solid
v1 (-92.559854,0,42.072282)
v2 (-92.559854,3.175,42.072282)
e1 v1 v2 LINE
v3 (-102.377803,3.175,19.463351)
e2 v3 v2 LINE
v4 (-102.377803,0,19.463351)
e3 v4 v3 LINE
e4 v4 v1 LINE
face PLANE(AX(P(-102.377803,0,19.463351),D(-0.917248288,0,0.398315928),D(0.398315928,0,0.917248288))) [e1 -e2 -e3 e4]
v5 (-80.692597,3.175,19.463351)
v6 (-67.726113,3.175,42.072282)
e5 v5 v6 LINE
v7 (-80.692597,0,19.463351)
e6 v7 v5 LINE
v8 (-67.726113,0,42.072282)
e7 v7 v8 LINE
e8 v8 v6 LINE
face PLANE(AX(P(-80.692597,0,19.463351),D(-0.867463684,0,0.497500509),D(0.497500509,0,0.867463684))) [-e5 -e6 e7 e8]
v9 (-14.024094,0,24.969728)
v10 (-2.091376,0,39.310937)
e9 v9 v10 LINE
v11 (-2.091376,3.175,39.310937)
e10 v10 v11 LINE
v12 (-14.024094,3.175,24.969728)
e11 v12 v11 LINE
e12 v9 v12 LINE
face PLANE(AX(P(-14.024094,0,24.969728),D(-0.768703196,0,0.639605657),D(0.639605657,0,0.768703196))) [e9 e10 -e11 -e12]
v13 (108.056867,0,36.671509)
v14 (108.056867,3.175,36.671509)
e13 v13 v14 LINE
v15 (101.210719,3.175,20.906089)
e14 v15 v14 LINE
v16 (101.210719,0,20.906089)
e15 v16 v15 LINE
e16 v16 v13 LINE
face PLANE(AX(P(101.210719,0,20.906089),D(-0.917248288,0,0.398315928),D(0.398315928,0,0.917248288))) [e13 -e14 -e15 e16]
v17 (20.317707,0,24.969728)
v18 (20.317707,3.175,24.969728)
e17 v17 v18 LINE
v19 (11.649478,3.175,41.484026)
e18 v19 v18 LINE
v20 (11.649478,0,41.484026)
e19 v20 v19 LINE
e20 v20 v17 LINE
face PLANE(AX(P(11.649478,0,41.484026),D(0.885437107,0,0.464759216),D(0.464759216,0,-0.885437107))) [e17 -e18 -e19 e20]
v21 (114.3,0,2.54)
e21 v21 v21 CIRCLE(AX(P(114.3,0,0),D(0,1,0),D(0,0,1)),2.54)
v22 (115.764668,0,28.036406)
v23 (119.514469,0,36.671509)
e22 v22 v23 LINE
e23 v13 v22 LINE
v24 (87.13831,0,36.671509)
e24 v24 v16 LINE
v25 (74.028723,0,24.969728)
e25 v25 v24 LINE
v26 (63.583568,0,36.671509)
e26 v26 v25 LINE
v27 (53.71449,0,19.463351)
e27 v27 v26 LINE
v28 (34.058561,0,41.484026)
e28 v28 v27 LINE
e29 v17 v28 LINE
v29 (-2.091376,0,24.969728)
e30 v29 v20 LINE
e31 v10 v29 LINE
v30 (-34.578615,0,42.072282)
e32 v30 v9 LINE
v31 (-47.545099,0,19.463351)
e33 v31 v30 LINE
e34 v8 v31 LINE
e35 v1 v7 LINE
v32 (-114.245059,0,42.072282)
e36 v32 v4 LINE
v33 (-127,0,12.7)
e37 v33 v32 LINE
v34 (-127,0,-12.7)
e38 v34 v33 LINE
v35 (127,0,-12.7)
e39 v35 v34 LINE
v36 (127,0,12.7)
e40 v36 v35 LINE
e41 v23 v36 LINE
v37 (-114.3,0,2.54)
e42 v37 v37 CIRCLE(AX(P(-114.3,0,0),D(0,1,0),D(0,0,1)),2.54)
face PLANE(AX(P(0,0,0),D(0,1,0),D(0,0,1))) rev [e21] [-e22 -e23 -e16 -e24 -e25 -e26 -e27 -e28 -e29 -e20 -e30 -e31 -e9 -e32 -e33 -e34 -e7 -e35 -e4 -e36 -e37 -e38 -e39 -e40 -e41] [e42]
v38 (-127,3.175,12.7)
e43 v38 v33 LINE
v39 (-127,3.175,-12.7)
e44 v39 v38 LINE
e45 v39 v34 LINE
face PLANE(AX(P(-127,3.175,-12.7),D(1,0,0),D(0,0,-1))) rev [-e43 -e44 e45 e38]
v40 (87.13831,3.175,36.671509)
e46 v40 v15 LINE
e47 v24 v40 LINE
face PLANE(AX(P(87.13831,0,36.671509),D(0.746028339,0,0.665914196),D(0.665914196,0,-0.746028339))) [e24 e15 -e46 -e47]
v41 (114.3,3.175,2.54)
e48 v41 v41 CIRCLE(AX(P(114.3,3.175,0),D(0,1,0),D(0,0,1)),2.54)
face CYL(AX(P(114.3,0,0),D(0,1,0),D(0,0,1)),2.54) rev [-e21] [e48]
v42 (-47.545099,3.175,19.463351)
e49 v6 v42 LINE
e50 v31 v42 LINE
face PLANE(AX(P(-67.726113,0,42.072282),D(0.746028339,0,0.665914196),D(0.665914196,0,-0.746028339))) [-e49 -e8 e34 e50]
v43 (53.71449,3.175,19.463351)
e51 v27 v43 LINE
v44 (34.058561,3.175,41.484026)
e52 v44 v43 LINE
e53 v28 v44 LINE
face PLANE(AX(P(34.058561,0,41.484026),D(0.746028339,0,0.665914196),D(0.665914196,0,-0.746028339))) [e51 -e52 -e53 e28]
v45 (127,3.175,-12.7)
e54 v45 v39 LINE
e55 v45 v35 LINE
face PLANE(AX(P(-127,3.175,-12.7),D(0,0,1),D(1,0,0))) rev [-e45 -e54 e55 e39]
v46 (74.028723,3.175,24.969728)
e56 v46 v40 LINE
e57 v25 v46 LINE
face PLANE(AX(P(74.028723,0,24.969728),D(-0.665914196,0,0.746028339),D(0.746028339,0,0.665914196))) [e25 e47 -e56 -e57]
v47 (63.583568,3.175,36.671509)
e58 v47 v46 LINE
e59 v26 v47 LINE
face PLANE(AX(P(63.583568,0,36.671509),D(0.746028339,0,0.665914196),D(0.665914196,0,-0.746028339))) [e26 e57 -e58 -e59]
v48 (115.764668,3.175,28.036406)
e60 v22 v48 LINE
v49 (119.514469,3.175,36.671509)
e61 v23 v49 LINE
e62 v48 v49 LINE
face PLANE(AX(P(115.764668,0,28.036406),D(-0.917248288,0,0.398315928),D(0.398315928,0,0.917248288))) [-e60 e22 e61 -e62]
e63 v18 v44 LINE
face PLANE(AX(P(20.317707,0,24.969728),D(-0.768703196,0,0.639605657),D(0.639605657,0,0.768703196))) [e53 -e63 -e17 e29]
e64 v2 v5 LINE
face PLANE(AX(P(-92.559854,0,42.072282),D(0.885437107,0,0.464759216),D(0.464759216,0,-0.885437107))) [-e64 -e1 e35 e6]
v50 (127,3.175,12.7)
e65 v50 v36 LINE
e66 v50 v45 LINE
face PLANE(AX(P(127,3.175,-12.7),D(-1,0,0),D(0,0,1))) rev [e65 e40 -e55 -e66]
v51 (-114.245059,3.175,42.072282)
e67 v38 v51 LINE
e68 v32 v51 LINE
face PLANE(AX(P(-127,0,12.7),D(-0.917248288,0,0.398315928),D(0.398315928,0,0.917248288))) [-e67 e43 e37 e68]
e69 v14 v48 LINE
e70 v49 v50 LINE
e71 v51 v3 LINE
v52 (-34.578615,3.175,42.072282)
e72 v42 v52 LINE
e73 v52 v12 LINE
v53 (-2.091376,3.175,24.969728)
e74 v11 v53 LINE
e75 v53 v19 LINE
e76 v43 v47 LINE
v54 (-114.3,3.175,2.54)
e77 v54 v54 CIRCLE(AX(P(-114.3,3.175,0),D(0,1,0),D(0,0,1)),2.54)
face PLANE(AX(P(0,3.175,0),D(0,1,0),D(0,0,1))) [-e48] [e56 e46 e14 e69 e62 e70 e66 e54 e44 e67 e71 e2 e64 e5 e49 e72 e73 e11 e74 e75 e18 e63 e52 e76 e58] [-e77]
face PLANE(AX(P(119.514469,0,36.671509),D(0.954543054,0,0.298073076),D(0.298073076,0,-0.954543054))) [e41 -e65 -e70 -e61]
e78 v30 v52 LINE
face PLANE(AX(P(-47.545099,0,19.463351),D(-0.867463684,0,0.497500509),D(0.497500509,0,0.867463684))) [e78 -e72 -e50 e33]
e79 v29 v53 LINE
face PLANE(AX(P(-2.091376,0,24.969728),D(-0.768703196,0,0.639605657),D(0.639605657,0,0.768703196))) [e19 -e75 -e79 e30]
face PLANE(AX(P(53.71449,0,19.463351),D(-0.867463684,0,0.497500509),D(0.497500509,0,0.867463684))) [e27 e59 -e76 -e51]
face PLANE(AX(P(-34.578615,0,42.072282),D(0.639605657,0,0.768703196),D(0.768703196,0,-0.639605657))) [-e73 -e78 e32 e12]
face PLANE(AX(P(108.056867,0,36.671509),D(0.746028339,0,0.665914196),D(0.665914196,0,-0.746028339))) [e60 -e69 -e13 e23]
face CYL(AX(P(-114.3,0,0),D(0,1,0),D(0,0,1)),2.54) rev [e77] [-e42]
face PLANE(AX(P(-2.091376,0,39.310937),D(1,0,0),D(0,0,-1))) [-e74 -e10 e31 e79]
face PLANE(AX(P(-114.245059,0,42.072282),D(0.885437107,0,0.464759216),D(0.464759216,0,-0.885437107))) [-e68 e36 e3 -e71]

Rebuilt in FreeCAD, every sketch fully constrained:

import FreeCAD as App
import Part
import Sketcher
from FreeCAD import Vector
Q = App.Units.Quantity


def add_polygon(sketch, points):
    """Adds a closed chain of lines whose ends are joined by coincident constraints."""
    first, n = sketch.GeometryCount, len(points)
    for a, b in zip(points, points[1:] + points[:1]):
        sketch.addGeometry(Part.LineSegment(App.Vector(*a, 0), App.Vector(*b, 0)), False)
    for i in range(n):
        sketch.addConstraint(Sketcher.Constraint("Coincident", first + i, 2, first + (i + 1) % n, 1))

doc = App.newDocument("Part")
body = doc.addObject("PartDesign::Body", "Body")

sketch1 = body.newObject("Sketcher::SketchObject", "Sketch")
sketch1.AttachmentSupport = (doc.getObject("XZ_Plane"), [""])
sketch1.MapMode = "FlatFace"
add_polygon(sketch1, [(-127, -12.7), (-127, 12.7), (127, 12.7), (127, -12.7)])
sketch1.addConstraint(Sketcher.Constraint("Vertical", 0))
sketch1.addConstraint(Sketcher.Constraint("Horizontal", 1))
sketch1.addConstraint(Sketcher.Constraint("Vertical", 2))
sketch1.addConstraint(Sketcher.Constraint("Horizontal", 3))
sketch1.addConstraint(Sketcher.Constraint("Symmetric", 0, 2, 2, 2, -1, 1))
sketch1.addConstraint(Sketcher.Constraint("DistanceX", 1, 1, 1, 2, Q("10 in")))
sketch1.addConstraint(Sketcher.Constraint("DistanceY", 0, 1, 0, 2, Q("1 in")))
pad1 = body.newObject("PartDesign::Pad", "Pad")
pad1.Profile = sketch1
pad1.Length = Q("0.125 in")
pad1.Reversed = True

sketch2 = body.newObject("Sketcher::SketchObject", "Sketch001")
sketch2.AttachmentSupport = (doc.getObject("XZ_Plane"), [""])
sketch2.MapMode = "FlatFace"
sketch2.AttachmentOffset = App.Placement(Vector(0, 0, -0.125 * 25.4), App.Rotation())
add_polygon(sketch2, [(-127, 12.7), (-114.245059, 42.072282), (-102.377803, 19.463351), (-92.559854, 42.072282), (-80.692597, 19.463351), (-67.726113, 42.072282), (-47.545099, 19.463351), (-34.578615, 42.072282), (-14.024094, 24.969728), (-2.091376, 39.310937), (-2.091376, 24.969728), (11.649478, 41.484026), (20.317707, 24.969728), (34.058561, 41.484026), (53.71449, 19.463351), (63.583568, 36.671509), (74.028723, 24.969728), (87.13831, 36.671509), (101.210719, 20.906089), (108.056867, 36.671509), (115.764668, 28.036406), (119.514469, 36.671509), (127, 12.7)])
sketch2.addConstraint(Sketcher.Constraint("Vertical", 9))
sketch2.addConstraint(Sketcher.Constraint("Horizontal", 22))
sketch2.addConstraint(Sketcher.Constraint("Parallel", 0, 2))
sketch2.addConstraint(Sketcher.Constraint("Parallel", 1, 3))
sketch2.addConstraint(Sketcher.Constraint("Parallel", 4, 6))
sketch2.addConstraint(Sketcher.Constraint("Perpendicular", 7, 8))
sketch2.addConstraint(Sketcher.Constraint("Parallel", 8, 10))
sketch2.addConstraint(Sketcher.Constraint("Parallel", 3, 11))
sketch2.addConstraint(Sketcher.Constraint("Parallel", 10, 12))
sketch2.addConstraint(Sketcher.Constraint("Parallel", 5, 13))
sketch2.addConstraint(Sketcher.Constraint("Parallel", 6, 14))
sketch2.addConstraint(Sketcher.Constraint("Parallel", 13, 15))
sketch2.addConstraint(Sketcher.Constraint("Perpendicular", 15, 16))
sketch2.addConstraint(Sketcher.Constraint("Perpendicular", 16, 17))
sketch2.addConstraint(Sketcher.Constraint("Parallel", 2, 18))
sketch2.addConstraint(Sketcher.Constraint("Parallel", 17, 19))
sketch2.addConstraint(Sketcher.Constraint("Parallel", 18, 20))
sketch2.addConstraint(Sketcher.Constraint("Horizontal", 0, 2, 2, 2))
sketch2.addConstraint(Sketcher.Constraint("Horizontal", 1, 2, 3, 2))
sketch2.addConstraint(Sketcher.Constraint("Horizontal", 2, 2, 4, 2))
sketch2.addConstraint(Sketcher.Constraint("Horizontal", 3, 2, 5, 2))
sketch2.addConstraint(Sketcher.Constraint("Horizontal", 4, 2, 6, 2))
sketch2.addConstraint(Sketcher.Constraint("Horizontal", 7, 2, 9, 2))
sketch2.addConstraint(Sketcher.Constraint("Horizontal", 9, 2, 11, 2))
sketch2.addConstraint(Sketcher.Constraint("Horizontal", 10, 2, 12, 2))
sketch2.addConstraint(Sketcher.Constraint("Horizontal", 5, 2, 13, 2))
sketch2.addConstraint(Sketcher.Constraint("Horizontal", 11, 2, 15, 2))
sketch2.addConstraint(Sketcher.Constraint("Horizontal", 14, 2, 16, 2))
sketch2.addConstraint(Sketcher.Constraint("Horizontal", 16, 2, 18, 2))
sketch2.addConstraint(Sketcher.Constraint("Horizontal", 18, 2, 20, 2))
sketch2.addConstraint(Sketcher.Constraint("DistanceX", 22, 2, 22, 1, Q("10 in")))
sketch2.addConstraint(Sketcher.Constraint("DistanceX", -1, 1, 21, 2, Q("5 in")))
sketch2.addConstraint(Sketcher.Constraint("DistanceY", -1, 1, 21, 2, Q("0.5 in")))
sketch2.addConstraint(Sketcher.Constraint("Distance", 10, Q("0.8458001 in")))
sketch2.addConstraint(Sketcher.Constraint("DistanceY", 11, 2, 14, 2, Q("0.4607 in")))
sketch2.addConstraint(Sketcher.Constraint("DistanceY", 9, 2, 9, 1, Q("14.341209 mm")))
sketch2.addConstraint(Sketcher.Constraint("DistanceX", 5, 2, -1, 1, Q("47.545099 mm")))
sketch2.addConstraint(Sketcher.Constraint("DistanceX", 3, 2, 5, 2, Q("33.147498 mm")))
sketch2.addConstraint(Sketcher.Constraint("DistanceX", 7, 2, 11, 2, Q("34.341801 mm")))
sketch2.addConstraint(Sketcher.Constraint("DistanceX", 14, 2, 18, 2, Q("44.473299 mm")))
sketch2.addConstraint(Sketcher.Constraint("DistanceX", 18, 2, 19, 2, Q("7.707801 mm")))
sketch2.addConstraint(Sketcher.Constraint("DistanceX", 19, 2, 20, 2, Q("3.749802 mm")))
sketch2.addConstraint(Sketcher.Constraint("Distance", 0, Q("32.022172 mm")))
sketch2.addConstraint(Sketcher.Constraint("Distance", 2, Q("24.648649 mm")))
sketch2.addConstraint(Sketcher.Constraint("Distance", 4, Q("26.063259 mm")))
sketch2.addConstraint(Sketcher.Constraint("Distance", 13, Q("29.51721 mm")))
pad2 = body.newObject("PartDesign::Pad", "Pad001")
pad2.Profile = sketch2
pad2.Length = Q("0.125 in")

sketch3 = body.newObject("Sketcher::SketchObject", "Sketch002")
sketch3.AttachmentSupport = (doc.getObject("XZ_Plane"), [""])
sketch3.MapMode = "FlatFace"
sketch3.AttachmentOffset = App.Placement(Vector(0, 0, -0.125 * 25.4), App.Rotation())
sketch3.addGeometry(Part.Circle(Vector(-114.3, 0, 0), Vector(0, 0, 1), 2.54), False)
sketch3.addGeometry(Part.Circle(Vector(114.3, 0, 0), Vector(0, 0, 1), 2.54), False)
sketch3.addConstraint(Sketcher.Constraint("Equal", 0, 1))
sketch3.addConstraint(Sketcher.Constraint("Symmetric", 0, 3, 1, 3, -1, 1))
sketch3.addConstraint(Sketcher.Constraint("PointOnObject", 0, 3, -1))
sketch3.addConstraint(Sketcher.Constraint("Diameter", 0, Q("0.2 in")))
sketch3.addConstraint(Sketcher.Constraint("DistanceX", 0, 3, 1, 3, Q("9 in")))
pocket1 = body.newObject("PartDesign::Pocket", "Pocket")
pocket1.Profile = sketch3
pocket1.Type = "ThroughAll"
pocket1.Reversed = True

doc.recompute()
